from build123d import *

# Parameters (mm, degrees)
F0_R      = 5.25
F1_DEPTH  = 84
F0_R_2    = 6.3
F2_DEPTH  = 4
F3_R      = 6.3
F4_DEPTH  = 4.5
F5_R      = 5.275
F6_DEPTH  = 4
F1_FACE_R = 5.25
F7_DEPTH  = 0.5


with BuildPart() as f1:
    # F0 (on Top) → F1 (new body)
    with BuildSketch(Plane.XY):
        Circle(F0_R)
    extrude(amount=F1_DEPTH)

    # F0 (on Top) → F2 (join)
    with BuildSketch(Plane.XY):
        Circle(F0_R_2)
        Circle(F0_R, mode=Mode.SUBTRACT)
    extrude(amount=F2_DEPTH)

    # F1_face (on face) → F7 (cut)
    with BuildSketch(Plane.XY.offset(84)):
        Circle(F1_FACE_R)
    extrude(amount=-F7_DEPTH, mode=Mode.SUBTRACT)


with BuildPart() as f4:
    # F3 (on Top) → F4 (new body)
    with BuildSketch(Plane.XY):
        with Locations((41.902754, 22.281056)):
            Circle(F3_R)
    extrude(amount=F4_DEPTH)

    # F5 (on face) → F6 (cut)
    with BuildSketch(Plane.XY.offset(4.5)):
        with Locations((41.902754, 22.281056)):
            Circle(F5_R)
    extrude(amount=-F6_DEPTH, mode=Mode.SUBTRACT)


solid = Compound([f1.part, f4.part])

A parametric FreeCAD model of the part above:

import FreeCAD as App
import Part
import Sketcher

V = App.Vector

doc = App.newDocument("Part")
params = doc.addObject("Spreadsheet::Sheet", "Params")
for row, (alias, value) in enumerate([
    ("sketch1_diameter", "10.5 mm"),
    ("pad1_length", "84 mm"),
    ("sketch2_diameter", "12.6 mm"),
    ("sketch2_diameter2", "10.5 mm"),
    ("pad2_length", "4 mm"),
    ("sketch3_diameter", "10.5 mm"),
    ("pocket1_length", "0.5 mm"),
    ("sketch4_diameter", "12.6 mm"),
    ("pad3_length", "4.5 mm"),
    ("sketch5_diameter", "10.55 mm"),
    ("pocket2_length", "4 mm"),
], start=1):
    params.set(f"A{row}", alias)
    params.set(f"B{row}", "=" + value)
    params.setAlias(f"B{row}", alias)

body = doc.addObject("PartDesign::Body", "Body")

# Sketch on XY plane
sketch1 = doc.addObject("Sketcher::SketchObject", "Sketch")
body.addObject(sketch1)
sketch1.AttachmentSupport = (doc.XY_Plane, [""])
sketch1.MapMode = "FlatFace"
sketch1.addGeometry(Part.Circle(V(0, 0, 0), V(0, 0, 1), 5), False)
sketch1.addConstraint(Sketcher.Constraint("Coincident", 0, 3, -1, 1))
sketch1.addConstraint(Sketcher.Constraint("Diameter", 0, 10.5))
sketch1.setExpression("Constraints[1]", "Params.sketch1_diameter")
pad1 = doc.addObject("PartDesign::Pad", "Pad")
body.addObject(pad1)
pad1.Profile = sketch1
pad1.setExpression("Length", "Params.pad1_length")

# Sketch on XY plane
sketch2 = doc.addObject("Sketcher::SketchObject", "Sketch001")
body.addObject(sketch2)
sketch2.AttachmentSupport = (doc.XY_Plane, [""])
sketch2.MapMode = "FlatFace"
sketch2.addGeometry(Part.Circle(V(0, 0, 0), V(0, 0, 1), 6), False)
sketch2.addGeometry(Part.Circle(V(0, 0, 0), V(0, 0, 1), 5), False)
sketch2.addConstraint(Sketcher.Constraint("Coincident", 0, 3, -1, 1))
sketch2.addConstraint(Sketcher.Constraint("Coincident", 1, 3, -1, 1))
sketch2.addConstraint(Sketcher.Constraint("Diameter", 0, 12.6))
sketch2.addConstraint(Sketcher.Constraint("Diameter", 1, 10.5))
sketch2.setExpression("Constraints[2]", "Params.sketch2_diameter")
sketch2.setExpression("Constraints[3]", "Params.sketch2_diameter2")
pad2 = doc.addObject("PartDesign::Pad", "Pad001")
body.addObject(pad2)
pad2.Profile = sketch2
pad2.setExpression("Length", "Params.pad2_length")

# Sketch on XY plane
sketch3 = doc.addObject("Sketcher::SketchObject", "Sketch002")
body.addObject(sketch3)
sketch3.AttachmentSupport = (doc.XY_Plane, [""])
sketch3.MapMode = "FlatFace"
sketch3.AttachmentOffset = App.Placement(V(0, 0, 84), App.Rotation())
sketch3.addGeometry(Part.Circle(V(0, 0, 0), V(0, 0, 1), 5), False)
sketch3.addConstraint(Sketcher.Constraint("Coincident", 0, 3, -1, 1))
sketch3.addConstraint(Sketcher.Constraint("Diameter", 0, 10.5))
sketch3.setExpression("Constraints[1]", "Params.sketch3_diameter")
pocket1 = doc.addObject("PartDesign::Pocket", "Pocket")
body.addObject(pocket1)
pocket1.Profile = sketch3
pocket1.setExpression("Length", "Params.pocket1_length")
body2 = doc.addObject("PartDesign::Body", "Body001")

# Sketch on XY plane
sketch4 = doc.addObject("Sketcher::SketchObject", "Sketch003")
body2.addObject(sketch4)
sketch4.AttachmentSupport = (doc.getObject("XY_Plane001"), [""])
sketch4.MapMode = "FlatFace"
sketch4.addGeometry(Part.Circle(V(42, 22, 0), V(0, 0, 1), 6), False)
sketch4.addConstraint(Sketcher.Constraint("Diameter", 0, 12.6))
sketch4.addConstraint(Sketcher.Constraint("DistanceX", -1, 1, 0, 3, 41.902754))
sketch4.addConstraint(Sketcher.Constraint("DistanceY", -1, 1, 0, 3, 22.281056))
sketch4.setExpression("Constraints[0]", "Params.sketch4_diameter")
pad3 = doc.addObject("PartDesign::Pad", "Pad002")
body2.addObject(pad3)
pad3.Profile = sketch4
pad3.setExpression("Length", "Params.pad3_length")

# Sketch on XY plane
sketch5 = doc.addObject("Sketcher::SketchObject", "Sketch004")
body2.addObject(sketch5)
sketch5.AttachmentSupport = (doc.getObject("XY_Plane001"), [""])
sketch5.MapMode = "FlatFace"
sketch5.AttachmentOffset = App.Placement(V(0, 0, 4.5), App.Rotation())
sketch5.addGeometry(Part.Circle(V(42, 22, 0), V(0, 0, 1), 5), False)
sketch5.addConstraint(Sketcher.Constraint("Diameter", 0, 10.55))
sketch5.addConstraint(Sketcher.Constraint("DistanceX", -1, 1, 0, 3, 41.902754))
sketch5.addConstraint(Sketcher.Constraint("DistanceY", -1, 1, 0, 3, 22.281056))
sketch5.setExpression("Constraints[0]", "Params.sketch5_diameter")
pocket2 = doc.addObject("PartDesign::Pocket", "Pocket001")
body2.addObject(pocket2)
pocket2.Profile = sketch5
pocket2.setExpression("Length", "Params.pocket2_length")

doc.recompute()
